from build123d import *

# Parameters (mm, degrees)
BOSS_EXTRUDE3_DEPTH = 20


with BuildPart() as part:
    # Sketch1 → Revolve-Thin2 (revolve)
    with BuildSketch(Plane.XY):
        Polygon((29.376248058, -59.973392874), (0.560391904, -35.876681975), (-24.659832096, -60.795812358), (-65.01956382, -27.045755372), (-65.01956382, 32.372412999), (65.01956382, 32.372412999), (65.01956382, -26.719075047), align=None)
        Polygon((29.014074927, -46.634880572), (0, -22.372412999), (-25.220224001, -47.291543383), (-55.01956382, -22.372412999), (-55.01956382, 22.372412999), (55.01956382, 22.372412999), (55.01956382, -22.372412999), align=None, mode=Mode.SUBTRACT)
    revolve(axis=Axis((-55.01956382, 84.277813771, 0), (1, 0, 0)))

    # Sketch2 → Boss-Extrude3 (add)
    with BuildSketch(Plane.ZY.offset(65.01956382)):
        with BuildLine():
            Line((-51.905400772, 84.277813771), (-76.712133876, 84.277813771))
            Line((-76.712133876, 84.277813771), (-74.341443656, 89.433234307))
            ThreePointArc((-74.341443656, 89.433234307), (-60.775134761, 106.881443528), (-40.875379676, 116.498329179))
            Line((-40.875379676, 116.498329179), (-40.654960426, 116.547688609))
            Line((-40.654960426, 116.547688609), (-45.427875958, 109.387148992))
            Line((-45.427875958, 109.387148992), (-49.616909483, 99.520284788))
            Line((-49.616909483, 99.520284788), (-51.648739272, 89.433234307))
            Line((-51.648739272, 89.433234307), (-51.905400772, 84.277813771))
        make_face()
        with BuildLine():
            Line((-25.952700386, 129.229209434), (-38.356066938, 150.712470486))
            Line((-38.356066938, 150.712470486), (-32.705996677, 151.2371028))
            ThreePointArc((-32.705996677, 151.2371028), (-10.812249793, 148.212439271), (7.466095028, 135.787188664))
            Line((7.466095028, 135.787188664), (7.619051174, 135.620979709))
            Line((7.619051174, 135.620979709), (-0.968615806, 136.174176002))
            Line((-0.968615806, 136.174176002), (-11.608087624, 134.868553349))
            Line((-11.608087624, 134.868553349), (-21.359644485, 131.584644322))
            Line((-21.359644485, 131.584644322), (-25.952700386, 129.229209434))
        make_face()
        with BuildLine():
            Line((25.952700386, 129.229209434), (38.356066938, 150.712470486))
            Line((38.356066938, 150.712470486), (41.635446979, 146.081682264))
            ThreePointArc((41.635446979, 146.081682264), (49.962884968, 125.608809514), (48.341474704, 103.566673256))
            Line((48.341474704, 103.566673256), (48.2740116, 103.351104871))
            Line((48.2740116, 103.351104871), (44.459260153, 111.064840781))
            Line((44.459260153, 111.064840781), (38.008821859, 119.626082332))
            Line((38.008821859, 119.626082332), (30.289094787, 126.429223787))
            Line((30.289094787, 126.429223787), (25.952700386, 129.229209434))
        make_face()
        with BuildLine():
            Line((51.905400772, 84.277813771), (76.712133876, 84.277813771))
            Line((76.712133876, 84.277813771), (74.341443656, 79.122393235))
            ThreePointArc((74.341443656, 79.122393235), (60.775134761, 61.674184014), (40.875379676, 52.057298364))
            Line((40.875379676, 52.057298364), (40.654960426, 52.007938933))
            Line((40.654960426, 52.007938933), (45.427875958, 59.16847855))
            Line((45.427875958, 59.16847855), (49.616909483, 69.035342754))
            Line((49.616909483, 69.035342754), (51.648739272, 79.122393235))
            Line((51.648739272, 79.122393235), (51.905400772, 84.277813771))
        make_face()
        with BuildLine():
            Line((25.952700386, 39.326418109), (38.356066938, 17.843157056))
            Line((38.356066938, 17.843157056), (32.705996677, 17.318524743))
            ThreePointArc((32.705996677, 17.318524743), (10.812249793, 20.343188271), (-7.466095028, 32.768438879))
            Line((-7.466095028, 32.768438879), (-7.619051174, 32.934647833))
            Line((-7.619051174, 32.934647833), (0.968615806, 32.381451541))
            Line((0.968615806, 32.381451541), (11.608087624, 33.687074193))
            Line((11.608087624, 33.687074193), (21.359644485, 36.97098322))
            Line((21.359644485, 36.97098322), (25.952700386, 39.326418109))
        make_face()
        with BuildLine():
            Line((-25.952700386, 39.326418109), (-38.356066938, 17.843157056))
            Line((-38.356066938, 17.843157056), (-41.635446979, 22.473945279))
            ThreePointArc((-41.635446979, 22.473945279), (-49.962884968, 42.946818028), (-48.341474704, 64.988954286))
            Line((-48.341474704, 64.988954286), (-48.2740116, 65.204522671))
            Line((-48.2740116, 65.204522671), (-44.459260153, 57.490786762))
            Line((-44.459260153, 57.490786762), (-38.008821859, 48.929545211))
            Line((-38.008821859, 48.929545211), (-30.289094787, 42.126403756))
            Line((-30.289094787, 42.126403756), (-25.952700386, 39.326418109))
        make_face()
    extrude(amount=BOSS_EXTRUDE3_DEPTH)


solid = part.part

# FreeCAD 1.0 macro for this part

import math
import FreeCAD as App
import Part
import Sketcher
from FreeCAD import Vector
Q = App.Units.Quantity

doc = App.newDocument("Part")
body = doc.addObject("PartDesign::Body", "Body")

# Sketch on XY plane
sketch1 = body.newObject("Sketcher::SketchObject", "Sketch")
sketch1.AttachmentSupport = (doc.getObject("XY_Plane"), [""])
sketch1.MapMode = "FlatFace"
sketch1.addGeometry([
    Part.LineSegment(Vector(0.560392, -35.876682, 0), Vector(29.376248, -59.973393, 0)),  # 0
    Part.LineSegment(Vector(29.376248, -59.973393, 0), Vector(65.019564, -26.719075, 0)),  # 1
    Part.LineSegment(Vector(65.019564, -26.719075, 0), Vector(65.019564, 32.372413, 0)),  # 2
    Part.LineSegment(Vector(65.019564, 32.372413, 0), Vector(-65.019564, 32.372413, 0)),  # 3
    Part.LineSegment(Vector(-65.019564, 32.372413, 0), Vector(-65.019564, -27.045755, 0)),  # 4
    Part.LineSegment(Vector(-65.019564, -27.045755, 0), Vector(-24.659832, -60.795812, 0)),  # 5
    Part.LineSegment(Vector(-24.659832, -60.795812, 0), Vector(0.560392, -35.876682, 0)),  # 6
    Part.LineSegment(Vector(29.014075, -46.634881, 0), Vector(0, -22.372413, 0)),  # 7
    Part.LineSegment(Vector(0, -22.372413, 0), Vector(-25.220224, -47.291543, 0)),  # 8
    Part.LineSegment(Vector(-25.220224, -47.291543, 0), Vector(-55.019564, -22.372413, 0)),  # 9
    Part.LineSegment(Vector(-55.019564, -22.372413, 0), Vector(-55.019564, 22.372413, 0)),  # 10
    Part.LineSegment(Vector(-55.019564, 22.372413, 0), Vector(55.019564, 22.372413, 0)),  # 11
    Part.LineSegment(Vector(55.019564, 22.372413, 0), Vector(55.019564, -22.372413, 0)),  # 12
    Part.LineSegment(Vector(55.019564, -22.372413, 0), Vector(29.014075, -46.634881, 0)),  # 13
], False)
sketch1.addGeometry(Part.LineSegment(Vector(-65.019564, 84.277814, 0), Vector(65.019564, 84.277814, 0)), True)  # axis
sketch1.addConstraint([
    Sketcher.Constraint("Coincident", 0, 2, 1, 1),
    Sketcher.Constraint("Coincident", 1, 2, 2, 1),
    Sketcher.Constraint("Coincident", 2, 2, 3, 1),
    Sketcher.Constraint("Coincident", 3, 2, 4, 1),
    Sketcher.Constraint("Coincident", 4, 2, 5, 1),
    Sketcher.Constraint("Coincident", 5, 2, 6, 1),
    Sketcher.Constraint("Coincident", 6, 2, 0, 1),
    Sketcher.Constraint("Coincident", 7, 2, 8, 1),
    Sketcher.Constraint("Coincident", 8, 2, 9, 1),
    Sketcher.Constraint("Coincident", 9, 2, 10, 1),
    Sketcher.Constraint("Coincident", 10, 2, 11, 1),
    Sketcher.Constraint("Coincident", 11, 2, 12, 1),
    Sketcher.Constraint("Coincident", 12, 2, 13, 1),
    Sketcher.Constraint("Coincident", 13, 2, 7, 1),
    Sketcher.Constraint("Vertical", 2),
    Sketcher.Constraint("Horizontal", 3),
    Sketcher.Constraint("Vertical", 4),
    Sketcher.Constraint("Vertical", 10),
    Sketcher.Constraint("Horizontal", 11),
    Sketcher.Constraint("Vertical", 12),
    Sketcher.Constraint("Horizontal", 14),
    Sketcher.Constraint("Symmetric", 9, 2, 11, 2, -1, 1),
    Sketcher.Constraint("PointOnObject", 7, 2, -2),
    Sketcher.Constraint("Parallel", 0, 5),
    Sketcher.Constraint("Parallel", 5, 7),
    Sketcher.Constraint("Parallel", 6, 8),
    Sketcher.Constraint("Parallel", 7, 9),
    Sketcher.Constraint("Parallel", 1, 13),
    Sketcher.Constraint("Horizontal", 7, 2, 9, 2),
    Sketcher.Constraint("Horizontal", 9, 2, 12, 2),
    Sketcher.Constraint("Vertical", 4, 2, 14, 1),
    Sketcher.Constraint("Vertical", 2, 2, 14, 2),
    Sketcher.Constraint("Equal", 6, 8),
    Sketcher.Constraint("DistanceX", 4, 2, 9, 2, Q("10 mm")),
    Sketcher.Constraint("DistanceY", 10, 2, 3, 2, Q("10 mm")),
    Sketcher.Constraint("DistanceX", 11, 2, 2, 2, Q("10 mm")),
    Sketcher.Constraint("DistanceY", 2, 1, 2, 2, Q("59.091488 mm")),
    Sketcher.Constraint("DistanceY", 4, 2, 4, 1, Q("59.418168 mm")),
    Sketcher.Constraint("DistanceY", 5, 2, 7, 2, Q("38.423399 mm")),
    Sketcher.Constraint("DistanceY", 13, 2, 6, 2, Q("10.758199 mm")),
    Sketcher.Constraint("DistanceY", 3, 2, 14, 1, Q("51.905401 mm")),
    Sketcher.Constraint("Distance", 5, Q("52.611541 mm")),
    Sketcher.Constraint("Distance", 7, Q("37.821738 mm")),
    Sketcher.Constraint("DistanceX", 3, 2, 3, 1, Q("130.039128 mm")),
    Sketcher.Constraint("DistanceY", 10, 1, 10, 2, Q("44.744826 mm")),
])
revolution = body.newObject("PartDesign::Revolution", "Revolution")
revolution.Profile = sketch1
revolution.ReferenceAxis = (sketch1, ["Axis0"])
revolution.Angle = 360

# Sketch on YZ plane
sketch2 = body.newObject("Sketcher::SketchObject", "Sketch001")
sketch2.AttachmentSupport = (doc.getObject("YZ_Plane"), [""])
sketch2.MapMode = "FlatFace"
sketch2.AttachmentOffset = App.Placement(Vector(0, 0, -65.019564), App.Rotation())
sketch2.addGeometry([
    Part.LineSegment(Vector(84.277814, -76.712134, 0), Vector(84.277814, -51.905401, 0)),  # 0
    Part.LineSegment(Vector(84.277814, -51.905401, 0), Vector(89.433234, -51.648739, 0)),  # 1
    Part.LineSegment(Vector(89.433234, -51.648739, 0), Vector(99.520285, -49.616909, 0)),  # 2
    Part.LineSegment(Vector(99.520285, -49.616909, 0), Vector(109.387149, -45.427876, 0)),  # 3
    Part.LineSegment(Vector(109.387149, -45.427876, 0), Vector(116.547689, -40.65496, 0)),  # 4
    Part.LineSegment(Vector(116.547689, -40.65496, 0), Vector(116.498329, -40.87538, 0)),  # 5
    Part.ArcOfCircle(Part.Circle(Vector(69.170479, -30.277051, 0), Vector(0, 0, 1), 48.5), math.radians(-65.304938), math.radians(-12.622252)),  # 6
    Part.LineSegment(Vector(89.433234, -74.341444, 0), Vector(84.277814, -76.712134, 0)),  # 7
    Part.LineSegment(Vector(150.71247, -38.356067, 0), Vector(129.229209, -25.9527, 0)),  # 8
    Part.LineSegment(Vector(129.229209, -25.9527, 0), Vector(131.584644, -21.359644, 0)),  # 9
    Part.LineSegment(Vector(131.584644, -21.359644, 0), Vector(134.868553, -11.608088, 0)),  # 10
    Part.LineSegment(Vector(134.868553, -11.608088, 0), Vector(136.174176, -0.968616, 0)),  # 11
    Part.LineSegment(Vector(136.174176, -0.968616, 0), Vector(135.62098, 7.619051, 0)),  # 12
    Part.LineSegment(Vector(135.62098, 7.619051, 0), Vector(135.787189, 7.466095, 0)),  # 13
    Part.ArcOfCircle(Part.Circle(Vector(102.944841, -28.221861, 0), Vector(0, 0, 1), 48.5), math.radians(-5.304938), math.radians(47.377748)),  # 14
    Part.LineSegment(Vector(151.237103, -32.705997, 0), Vector(150.71247, -38.356067, 0)),  # 15
    Part.LineSegment(Vector(150.71247, 38.356067, 0), Vector(129.229209, 25.9527, 0)),  # 16
    Part.LineSegment(Vector(129.229209, 25.9527, 0), Vector(126.429224, 30.289095, 0)),  # 17
    Part.LineSegment(Vector(126.429224, 30.289095, 0), Vector(119.626082, 38.008822, 0)),  # 18
    Part.LineSegment(Vector(119.626082, 38.008822, 0), Vector(111.064841, 44.45926, 0)),  # 19
    Part.LineSegment(Vector(111.064841, 44.45926, 0), Vector(103.351105, 48.274012, 0)),  # 20
    Part.LineSegment(Vector(103.351105, 48.274012, 0), Vector(103.566673, 48.341475, 0)),  # 21
    Part.ArcOfCircle(Part.Circle(Vector(118.052176, 2.055189, 0), Vector(0, 0, 1), 48.5), math.radians(54.695062), math.radians(107.377748)),  # 22
    Part.LineSegment(Vector(146.081682, 41.635447, 0), Vector(150.71247, 38.356067, 0)),  # 23
    Part.LineSegment(Vector(84.277814, 76.712134, 0), Vector(84.277814, 51.905401, 0)),  # 24
    Part.LineSegment(Vector(84.277814, 51.905401, 0), Vector(79.122393, 51.648739, 0)),  # 25
    Part.LineSegment(Vector(79.122393, 51.648739, 0), Vector(69.035343, 49.616909, 0)),  # 26
    Part.LineSegment(Vector(69.035343, 49.616909, 0), Vector(59.168479, 45.427876, 0)),  # 27
    Part.LineSegment(Vector(59.168479, 45.427876, 0), Vector(52.007939, 40.65496, 0)),  # 28
    Part.LineSegment(Vector(52.007939, 40.65496, 0), Vector(52.057298, 40.87538, 0)),  # 29
    Part.ArcOfCircle(Part.Circle(Vector(99.385149, 30.277051, 0), Vector(0, 0, 1), 48.5), math.radians(114.695062), math.radians(167.377748)),  # 30
    Part.LineSegment(Vector(79.122393, 74.341444, 0), Vector(84.277814, 76.712134, 0)),  # 31
    Part.LineSegment(Vector(17.843157, 38.356067, 0), Vector(39.326418, 25.9527, 0)),  # 32
    Part.LineSegment(Vector(39.326418, 25.9527, 0), Vector(36.970983, 21.359644, 0)),  # 33
    Part.LineSegment(Vector(36.970983, 21.359644, 0), Vector(33.687074, 11.608088, 0)),  # 34
    Part.LineSegment(Vector(33.687074, 11.608088, 0), Vector(32.381452, 0.968616, 0)),  # 35
    Part.LineSegment(Vector(32.381452, 0.968616, 0), Vector(32.934648, -7.619051, 0)),  # 36
    Part.LineSegment(Vector(32.934648, -7.619051, 0), Vector(32.768439, -7.466095, 0)),  # 37
    Part.ArcOfCircle(Part.Circle(Vector(65.610786, 28.221861, 0), Vector(0, 0, 1), 48.5), math.radians(174.695062), math.radians(227.377748)),  # 38
    Part.LineSegment(Vector(17.318525, 32.705997, 0), Vector(17.843157, 38.356067, 0)),  # 39
    Part.LineSegment(Vector(17.843157, -38.356067, 0), Vector(39.326418, -25.9527, 0)),  # 40
    Part.LineSegment(Vector(39.326418, -25.9527, 0), Vector(42.126404, -30.289095, 0)),  # 41
    Part.LineSegment(Vector(42.126404, -30.289095, 0), Vector(48.929545, -38.008822, 0)),  # 42
    Part.LineSegment(Vector(48.929545, -38.008822, 0), Vector(57.490787, -44.45926, 0)),  # 43
    Part.LineSegment(Vector(57.490787, -44.45926, 0), Vector(65.204523, -48.274012, 0)),  # 44
    Part.LineSegment(Vector(65.204523, -48.274012, 0), Vector(64.988954, -48.341475, 0)),  # 45
    Part.ArcOfCircle(Part.Circle(Vector(50.503451, -2.055189, 0), Vector(0, 0, 1), 48.5), math.radians(-125.304938), math.radians(-72.622252)),  # 46
    Part.LineSegment(Vector(22.473945, -41.635447, 0), Vector(17.843157, -38.356067, 0)),  # 47
], False)
sketch2.addConstraint([
    Sketcher.Constraint("Coincident", 0, 2, 1, 1),
    Sketcher.Constraint("Coincident", 1, 2, 2, 1),
    Sketcher.Constraint("Coincident", 2, 2, 3, 1),
    Sketcher.Constraint("Coincident", 3, 2, 4, 1),
    Sketcher.Constraint("Coincident", 4, 2, 5, 1),
    Sketcher.Constraint("Tangent", 5, 2, 6, 2),
    Sketcher.Constraint("Tangent", 6, 1, 7, 1),
    Sketcher.Constraint("Coincident", 7, 2, 0, 1),
    Sketcher.Constraint("Coincident", 8, 2, 9, 1),
    Sketcher.Constraint("Coincident", 9, 2, 10, 1),
    Sketcher.Constraint("Coincident", 10, 2, 11, 1),
    Sketcher.Constraint("Coincident", 11, 2, 12, 1),
    Sketcher.Constraint("Coincident", 12, 2, 13, 1),
    Sketcher.Constraint("Tangent", 13, 2, 14, 2),
    Sketcher.Constraint("Tangent", 14, 1, 15, 1),
    Sketcher.Constraint("Coincident", 15, 2, 8, 1),
    Sketcher.Constraint("Coincident", 16, 2, 17, 1),
    Sketcher.Constraint("Coincident", 17, 2, 18, 1),
    Sketcher.Constraint("Coincident", 18, 2, 19, 1),
    Sketcher.Constraint("Coincident", 19, 2, 20, 1),
    Sketcher.Constraint("Coincident", 20, 2, 21, 1),
    Sketcher.Constraint("Tangent", 21, 2, 22, 2),
    Sketcher.Constraint("Tangent", 22, 1, 23, 1),
    Sketcher.Constraint("Coincident", 23, 2, 16, 1),
    Sketcher.Constraint("Coincident", 24, 2, 25, 1),
    Sketcher.Constraint("Coincident", 25, 2, 26, 1),
    Sketcher.Constraint("Coincident", 26, 2, 27, 1),
    Sketcher.Constraint("Coincident", 27, 2, 28, 1),
    Sketcher.Constraint("Coincident", 28, 2, 29, 1),
    Sketcher.Constraint("Tangent", 29, 2, 30, 2),
    Sketcher.Constraint("Tangent", 30, 1, 31, 1),
    Sketcher.Constraint("Coincident", 31, 2, 24, 1),
    Sketcher.Constraint("Coincident", 32, 2, 33, 1),
    Sketcher.Constraint("Coincident", 33, 2, 34, 1),
    Sketcher.Constraint("Coincident", 34, 2, 35, 1),
    Sketcher.Constraint("Coincident", 35, 2, 36, 1),
    Sketcher.Constraint("Coincident", 36, 2, 37, 1),
    Sketcher.Constraint("Tangent", 37, 2, 38, 2),
    Sketcher.Constraint("Tangent", 38, 1, 39, 1),
    Sketcher.Constraint("Coincident", 39, 2, 32, 1),
    Sketcher.Constraint("Coincident", 40, 2, 41, 1),
    Sketcher.Constraint("Coincident", 41, 2, 42, 1),
    Sketcher.Constraint("Coincident", 42, 2, 43, 1),
    Sketcher.Constraint("Coincident", 43, 2, 44, 1),
    Sketcher.Constraint("Coincident", 44, 2, 45, 1),
    Sketcher.Constraint("Tangent", 45, 2, 46, 2),
    Sketcher.Constraint("Tangent", 46, 1, 47, 1),
    Sketcher.Constraint("Coincident", 47, 2, 40, 1),
    Sketcher.Constraint("Vertical", 0),
    Sketcher.Constraint("Vertical", 24),
    Sketcher.Constraint("Equal", 6, 14),
    Sketcher.Constraint("Equal", 14, 22),
    Sketcher.Constraint("Equal", 22, 30),
    Sketcher.Constraint("Equal", 30, 38),
    Sketcher.Constraint("Equal", 38, 46),
    Sketcher.Constraint("Symmetric", 8, 2, 16, 2, -1),
    Sketcher.Constraint("Symmetric", 15, 2, 23, 2, -1),
    Sketcher.Constraint("Symmetric", 0, 2, 24, 2, -1),
    Sketcher.Constraint("Symmetric", 32, 2, 40, 2, -1),
    Sketcher.Constraint("Symmetric", 39, 2, 47, 2, -1),
    Sketcher.Constraint("Parallel", 1, 25),
    Sketcher.Constraint("Parallel", 2, 26),
    Sketcher.Constraint("Parallel", 3, 27),
    Sketcher.Constraint("Parallel", 4, 28),
    Sketcher.Constraint("Parallel", 5, 29),
    Sketcher.Constraint("Parallel", 7, 31),
    Sketcher.Constraint("Parallel", 8, 32),
    Sketcher.Constraint("Parallel", 9, 33),
    Sketcher.Constraint("Parallel", 10, 34),
    Sketcher.Constraint("Parallel", 11, 35),
    Sketcher.Constraint("Parallel", 12, 36),
    Sketcher.Constraint("Parallel", 13, 37),
    Sketcher.Constraint("Parallel", 15, 39),
    Sketcher.Constraint("Parallel", 17, 41),
    Sketcher.Constraint("Parallel", 18, 42),
    Sketcher.Constraint("Parallel", 19, 43),
    Sketcher.Constraint("Parallel", 20, 44),
    Sketcher.Constraint("Parallel", 21, 45),
    Sketcher.Constraint("Parallel", 23, 47),
    Sketcher.Constraint("Horizontal", 16, 2, 32, 2),
    Sketcher.Constraint("Horizontal", 23, 2, 39, 2),
    Sketcher.Constraint("Vertical", 1, 2, 6, 1),
    Sketcher.Constraint("Vertical", 25, 2, 30, 1),
    Sketcher.Constraint("Equal", 0, 24),
    Sketcher.Constraint("Equal", 1, 9),
    Sketcher.Constraint("Equal", 2, 10),
    Sketcher.Constraint("Equal", 3, 11),
    Sketcher.Constraint("Equal", 4, 12),
    Sketcher.Constraint("Equal", 5, 13),
    Sketcher.Constraint("Equal", 7, 15),
    Sketcher.Constraint("Equal", 9, 17),
    Sketcher.Constraint("Equal", 10, 18),
    Sketcher.Constraint("Equal", 11, 19),
    Sketcher.Constraint("Equal", 12, 20),
    Sketcher.Constraint("Equal", 13, 21),
    Sketcher.Constraint("Equal", 15, 23),
    Sketcher.Constraint("Equal", 17, 25),
    Sketcher.Constraint("Equal", 18, 26),
    Sketcher.Constraint("Equal", 19, 27),
    Sketcher.Constraint("Equal", 25, 33),
    Sketcher.Constraint("Equal", 26, 34),
    Sketcher.Constraint("Equal", 27, 35),
    Sketcher.Constraint("Equal", 28, 36),
    Sketcher.Constraint("Equal", 33, 41),
    Sketcher.Constraint("Equal", 34, 42),
    Sketcher.Constraint("Equal", 35, 43),
    Sketcher.Constraint("Equal", 36, 44),
    Sketcher.Constraint("Radius", 6, Q("48.5 mm")),
    Sketcher.Constraint("Angle", 8, Q("150 deg")),
    Sketcher.Constraint("DistanceX", 22, 3, 11, 2, Q("18.122 mm")),
    Sketcher.Constraint("DistanceY", 13, 2, 17, 2, Q("22.823 mm")),
    Sketcher.Constraint("DistanceY", 0, 2, -1, 1, Q("51.905401 mm")),
    Sketcher.Constraint("DistanceY", 8, 2, -1, 1, Q("25.9527 mm")),
    Sketcher.Constraint("DistanceX", -1, 1, 29, 2, Q("52.057298 mm")),
    Sketcher.Constraint("DistanceY", 6, 3, 30, 3, Q("60.554101 mm")),
    Sketcher.Constraint("DistanceY", 2, 2, 22, 3, Q("51.672099 mm")),
    Sketcher.Constraint("DistanceY", 4, 2, 14, 3, Q("12.433099 mm")),
    Sketcher.Constraint("DistanceX", 18, 2, 22, 1, Q("26.4556 mm")),
    Sketcher.Constraint("Distance", 2, Q("10.289651 mm")),
    Sketcher.Constraint("Distance", 5, Q("0.225878 mm")),
    Sketcher.Constraint("DistanceY", 0, 1, 0, 2, Q("24.806733 mm")),
    Sketcher.Constraint("DistanceX", -1, 1, 6, 3, Q("69.170479 mm")),
    Sketcher.Constraint("DistanceX", -1, 1, 14, 3, Q("102.944841 mm")),
    Sketcher.Constraint("DistanceY", 14, 3, -1, 1, Q("28.221861 mm")),
    Sketcher.Constraint("DistanceY", -1, 1, 22, 3, Q("2.055189 mm")),
    Sketcher.Constraint("DistanceX", -1, 1, 46, 3, Q("50.503451 mm")),
    Sketcher.Constraint("DistanceY", 1, 2, -1, 1, Q("51.648739 mm")),
    Sketcher.Constraint("DistanceX", -1, 1, 3, 2, Q("109.387149 mm")),
    Sketcher.Constraint("DistanceX", -1, 1, 8, 2, Q("129.229209 mm")),
    Sketcher.Constraint("DistanceX", -1, 1, 12, 2, Q("135.62098 mm")),
    Sketcher.Constraint("DistanceX", -1, 1, 19, 2, Q("111.064841 mm")),
    Sketcher.Constraint("DistanceY", -1, 1, 19, 2, Q("44.45926 mm")),
    Sketcher.Constraint("DistanceX", 22, 3, 9, 2, Q("13.532468 mm")),
])
pad1 = body.newObject("PartDesign::Pad", "Pad")
pad1.Profile = sketch2
pad1.Length = 20
pad1.Reversed = True

doc.recompute()
